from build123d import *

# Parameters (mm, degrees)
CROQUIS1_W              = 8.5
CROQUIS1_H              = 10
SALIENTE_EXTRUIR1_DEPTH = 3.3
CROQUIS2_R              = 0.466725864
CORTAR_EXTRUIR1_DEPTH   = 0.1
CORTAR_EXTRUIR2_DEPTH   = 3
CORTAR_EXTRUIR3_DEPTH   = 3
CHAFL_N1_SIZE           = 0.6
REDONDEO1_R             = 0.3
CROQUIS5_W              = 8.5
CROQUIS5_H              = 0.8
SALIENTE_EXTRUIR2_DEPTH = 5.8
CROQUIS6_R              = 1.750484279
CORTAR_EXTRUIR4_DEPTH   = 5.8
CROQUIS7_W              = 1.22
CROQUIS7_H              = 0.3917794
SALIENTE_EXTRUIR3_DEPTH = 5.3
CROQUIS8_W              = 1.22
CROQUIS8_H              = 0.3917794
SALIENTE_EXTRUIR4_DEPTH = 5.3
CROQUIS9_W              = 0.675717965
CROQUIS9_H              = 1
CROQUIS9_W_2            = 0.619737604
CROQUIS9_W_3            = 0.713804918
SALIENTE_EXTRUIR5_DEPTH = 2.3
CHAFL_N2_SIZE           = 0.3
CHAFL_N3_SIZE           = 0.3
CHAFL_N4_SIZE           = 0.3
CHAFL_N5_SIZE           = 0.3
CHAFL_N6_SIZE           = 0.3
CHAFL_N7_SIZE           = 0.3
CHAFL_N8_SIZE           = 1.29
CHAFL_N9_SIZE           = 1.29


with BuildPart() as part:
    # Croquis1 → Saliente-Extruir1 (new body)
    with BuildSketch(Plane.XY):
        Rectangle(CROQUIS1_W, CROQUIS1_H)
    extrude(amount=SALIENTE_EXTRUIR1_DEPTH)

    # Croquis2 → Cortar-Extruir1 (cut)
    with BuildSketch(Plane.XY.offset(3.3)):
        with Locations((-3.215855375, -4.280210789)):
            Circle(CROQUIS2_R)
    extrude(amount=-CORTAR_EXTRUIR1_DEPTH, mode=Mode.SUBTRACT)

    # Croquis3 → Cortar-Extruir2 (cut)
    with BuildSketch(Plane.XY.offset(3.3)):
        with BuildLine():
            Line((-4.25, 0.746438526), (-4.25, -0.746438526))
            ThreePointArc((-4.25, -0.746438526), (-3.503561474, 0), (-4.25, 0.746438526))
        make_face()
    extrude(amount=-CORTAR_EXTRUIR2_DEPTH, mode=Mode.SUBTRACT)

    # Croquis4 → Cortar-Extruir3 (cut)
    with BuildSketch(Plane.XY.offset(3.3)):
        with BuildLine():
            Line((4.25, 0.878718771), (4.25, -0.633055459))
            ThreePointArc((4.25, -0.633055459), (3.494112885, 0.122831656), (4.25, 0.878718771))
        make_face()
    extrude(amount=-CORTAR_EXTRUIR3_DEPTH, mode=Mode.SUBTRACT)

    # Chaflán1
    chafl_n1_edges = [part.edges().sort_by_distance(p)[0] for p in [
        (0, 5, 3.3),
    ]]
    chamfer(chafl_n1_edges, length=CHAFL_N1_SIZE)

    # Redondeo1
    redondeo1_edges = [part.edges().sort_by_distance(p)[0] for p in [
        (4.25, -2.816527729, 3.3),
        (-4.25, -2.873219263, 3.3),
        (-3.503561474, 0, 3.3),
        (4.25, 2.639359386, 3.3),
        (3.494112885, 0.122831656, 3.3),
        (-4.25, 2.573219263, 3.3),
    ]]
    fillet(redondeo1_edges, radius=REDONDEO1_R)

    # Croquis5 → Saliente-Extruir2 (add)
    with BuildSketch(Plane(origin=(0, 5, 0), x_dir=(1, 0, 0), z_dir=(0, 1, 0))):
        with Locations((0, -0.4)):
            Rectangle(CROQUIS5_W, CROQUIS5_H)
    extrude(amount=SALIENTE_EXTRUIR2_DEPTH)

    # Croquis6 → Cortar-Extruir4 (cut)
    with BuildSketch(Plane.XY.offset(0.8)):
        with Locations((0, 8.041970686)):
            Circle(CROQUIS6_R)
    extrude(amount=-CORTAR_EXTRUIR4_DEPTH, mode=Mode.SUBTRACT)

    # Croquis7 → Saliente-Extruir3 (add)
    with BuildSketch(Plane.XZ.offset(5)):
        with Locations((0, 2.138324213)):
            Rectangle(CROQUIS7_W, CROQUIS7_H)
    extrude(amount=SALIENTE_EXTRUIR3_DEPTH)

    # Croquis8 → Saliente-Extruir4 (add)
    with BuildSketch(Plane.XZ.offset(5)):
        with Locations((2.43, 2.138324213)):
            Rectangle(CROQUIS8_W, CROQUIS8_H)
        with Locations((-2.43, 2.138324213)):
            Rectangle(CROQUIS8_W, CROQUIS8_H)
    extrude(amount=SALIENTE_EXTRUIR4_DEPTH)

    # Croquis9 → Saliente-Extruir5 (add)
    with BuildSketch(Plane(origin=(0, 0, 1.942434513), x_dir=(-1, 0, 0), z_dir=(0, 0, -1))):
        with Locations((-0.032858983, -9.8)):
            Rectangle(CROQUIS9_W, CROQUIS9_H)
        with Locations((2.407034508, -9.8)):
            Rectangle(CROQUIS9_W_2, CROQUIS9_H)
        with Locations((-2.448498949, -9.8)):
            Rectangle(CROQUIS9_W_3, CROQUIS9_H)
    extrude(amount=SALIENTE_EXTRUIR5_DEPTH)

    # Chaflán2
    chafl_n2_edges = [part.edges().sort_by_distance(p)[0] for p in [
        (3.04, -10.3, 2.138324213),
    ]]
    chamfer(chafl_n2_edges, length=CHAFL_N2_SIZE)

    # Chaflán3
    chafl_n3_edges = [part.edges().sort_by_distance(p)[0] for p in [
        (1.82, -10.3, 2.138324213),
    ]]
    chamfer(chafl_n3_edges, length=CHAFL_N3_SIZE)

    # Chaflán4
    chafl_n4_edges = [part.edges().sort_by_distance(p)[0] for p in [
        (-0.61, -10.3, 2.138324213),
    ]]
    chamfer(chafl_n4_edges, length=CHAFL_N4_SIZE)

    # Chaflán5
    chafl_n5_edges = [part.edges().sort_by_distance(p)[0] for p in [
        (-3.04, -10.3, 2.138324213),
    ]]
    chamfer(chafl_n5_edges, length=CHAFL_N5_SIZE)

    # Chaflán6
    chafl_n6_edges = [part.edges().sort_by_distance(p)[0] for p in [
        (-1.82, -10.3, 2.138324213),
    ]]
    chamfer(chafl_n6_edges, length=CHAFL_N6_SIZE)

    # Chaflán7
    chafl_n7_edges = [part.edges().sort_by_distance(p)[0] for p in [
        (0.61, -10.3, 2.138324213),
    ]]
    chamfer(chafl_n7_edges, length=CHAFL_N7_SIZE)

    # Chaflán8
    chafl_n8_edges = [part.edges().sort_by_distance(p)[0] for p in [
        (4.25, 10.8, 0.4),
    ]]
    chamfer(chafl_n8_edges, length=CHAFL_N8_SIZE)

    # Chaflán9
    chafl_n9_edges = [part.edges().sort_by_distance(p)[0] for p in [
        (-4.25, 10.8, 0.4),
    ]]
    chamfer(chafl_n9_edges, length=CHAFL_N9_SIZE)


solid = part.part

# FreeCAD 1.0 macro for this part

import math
import FreeCAD as App
import Part
import Sketcher
from FreeCAD import Vector
Q = App.Units.Quantity


def edges_at(feature, points):
    """Names of the edges that pass closest to the given points."""
    edges = feature.Shape.Edges
    near = lambda p: min(range(len(edges)), key=lambda i: edges[i].distToShape(Part.Vertex(*p))[0])
    return sorted({f"Edge{near(p) + 1}" for p in points})

doc = App.newDocument("Part")
body = doc.addObject("PartDesign::Body", "Body")

sketch1 = body.newObject("Sketcher::SketchObject", "Sketch")
sketch1.AttachmentSupport = (doc.getObject("XY_Plane"), [""])
sketch1.MapMode = "FlatFace"
sketch1.addGeometry(Part.LineSegment(Vector(-4.25, 5, 0), Vector(-4.25, -5, 0)), False)
sketch1.addGeometry(Part.LineSegment(Vector(-4.25, -5, 0), Vector(4.25, -5, 0)), False)
sketch1.addGeometry(Part.LineSegment(Vector(4.25, -5, 0), Vector(4.25, 5, 0)), False)
sketch1.addGeometry(Part.LineSegment(Vector(4.25, 5, 0), Vector(-4.25, 5, 0)), False)
sketch1.addConstraint(Sketcher.Constraint("Coincident", 0, 2, 1, 1))
sketch1.addConstraint(Sketcher.Constraint("Coincident", 1, 2, 2, 1))
sketch1.addConstraint(Sketcher.Constraint("Coincident", 2, 2, 3, 1))
sketch1.addConstraint(Sketcher.Constraint("Coincident", 3, 2, 0, 1))
sketch1.addConstraint(Sketcher.Constraint("Vertical", 0))
sketch1.addConstraint(Sketcher.Constraint("Horizontal", 1))
sketch1.addConstraint(Sketcher.Constraint("Vertical", 2))
sketch1.addConstraint(Sketcher.Constraint("Horizontal", 3))
sketch1.addConstraint(Sketcher.Constraint("Symmetric", 0, 2, 2, 2, -1, 1))
sketch1.addConstraint(Sketcher.Constraint("DistanceY", 0, 2, 0, 1, Q("10 mm")))
sketch1.addConstraint(Sketcher.Constraint("DistanceX", 1, 1, 1, 2, Q("8.5 mm")))
pad1 = body.newObject("PartDesign::Pad", "Pad")
pad1.Profile = sketch1
pad1.Length = 3.3

sketch2 = body.newObject("Sketcher::SketchObject", "Sketch001")
sketch2.AttachmentSupport = (doc.getObject("XY_Plane"), [""])
sketch2.MapMode = "FlatFace"
sketch2.AttachmentOffset = App.Placement(Vector(0, 0, 3.3), App.Rotation())
sketch2.addGeometry(Part.Circle(Vector(-3.215855, -4.280211, 0), Vector(0, 0, 1), 0.466726), False)
sketch2.addConstraint(Sketcher.Constraint("Diameter", 0, Q("0.933452 mm")))
sketch2.addConstraint(Sketcher.Constraint("DistanceY", 0, 3, -1, 1, Q("4.280211 mm")))
sketch2.addConstraint(Sketcher.Constraint("DistanceX", 0, 3, -1, 1, Q("3.215855 mm")))
pocket1 = body.newObject("PartDesign::Pocket", "Pocket")
pocket1.Profile = sketch2
pocket1.Length = 0.1

sketch3 = body.newObject("Sketcher::SketchObject", "Sketch002")
sketch3.AttachmentSupport = (doc.getObject("XY_Plane"), [""])
sketch3.MapMode = "FlatFace"
sketch3.AttachmentOffset = App.Placement(Vector(0, 0, 3.3), App.Rotation())
sketch3.addGeometry(Part.LineSegment(Vector(-4.25, 0.746439, 0), Vector(-4.25, -0.746439, 0)), False)
sketch3.addGeometry(Part.ArcOfCircle(Part.Circle(Vector(-4.25, 0, 0), Vector(0, 0, 1), 0.746439), math.radians(-90), math.radians(90)), False)
sketch3.addConstraint(Sketcher.Constraint("Coincident", 0, 1, 1, 2))
sketch3.addConstraint(Sketcher.Constraint("Coincident", 1, 1, 0, 2))
sketch3.addConstraint(Sketcher.Constraint("Vertical", 0))
sketch3.addConstraint(Sketcher.Constraint("PointOnObject", 1, 3, -1))
sketch3.addConstraint(Sketcher.Constraint("Vertical", 1, 3, 0, 1))
sketch3.addConstraint(Sketcher.Constraint("DistanceX", 1, 3, -1, 1, Q("4.25 mm")))
sketch3.addConstraint(Sketcher.Constraint("Radius", 1, Q("0.746439 mm")))
pocket2 = body.newObject("PartDesign::Pocket", "Pocket001")
pocket2.Profile = sketch3
pocket2.Length = 3

sketch4 = body.newObject("Sketcher::SketchObject", "Sketch003")
sketch4.AttachmentSupport = (doc.getObject("XY_Plane"), [""])
sketch4.MapMode = "FlatFace"
sketch4.AttachmentOffset = App.Placement(Vector(0, 0, 3.3), App.Rotation())
sketch4.addGeometry(Part.LineSegment(Vector(4.25, -0.633055, 0), Vector(4.25, 0.878719, 0)), False)
sketch4.addGeometry(Part.ArcOfCircle(Part.Circle(Vector(4.25, 0.122832, 0), Vector(0, 0, 1), 0.755887), math.radians(90), math.radians(270)), False)
sketch4.addConstraint(Sketcher.Constraint("Coincident", 0, 1, 1, 2))
sketch4.addConstraint(Sketcher.Constraint("Coincident", 1, 1, 0, 2))
sketch4.addConstraint(Sketcher.Constraint("Vertical", 0))
sketch4.addConstraint(Sketcher.Constraint("Vertical", 1, 3, 0, 1))
sketch4.addConstraint(Sketcher.Constraint("DistanceX", -1, 1, 1, 3, Q("4.25 mm")))
sketch4.addConstraint(Sketcher.Constraint("Radius", 1, Q("0.755887 mm")))
sketch4.addConstraint(Sketcher.Constraint("DistanceY", -1, 1, 1, 3, Q("0.122832 mm")))
pocket3 = body.newObject("PartDesign::Pocket", "Pocket002")
pocket3.Profile = sketch4
pocket3.Length = 3
doc.recompute()

chamfer = body.newObject("PartDesign::Chamfer", "Chamfer")
chamfer.Base = (pocket3, edges_at(pocket3, [(0, 5, 3.3)]))
chamfer.Size = 0.6
doc.recompute()

fillet = body.newObject("PartDesign::Fillet", "Fillet")
fillet.Base = (chamfer, edges_at(chamfer, [
    (4.25, -2.817, 3.3),
    (-4.25, -2.873, 3.3),
    (-3.504, 0, 3.3),
    (4.25, 2.639, 3.3),
    (3.494, 0.123, 3.3),
    (-4.25, 2.573, 3.3),
]))
fillet.Radius = 0.3

sketch5 = body.newObject("Sketcher::SketchObject", "Sketch004")
sketch5.AttachmentSupport = (doc.getObject("XZ_Plane"), [""])
sketch5.MapMode = "FlatFace"
sketch5.AttachmentOffset = App.Placement(Vector(0, 0, -5), App.Rotation())
sketch5.addGeometry(Part.LineSegment(Vector(-4.25, 0, 0), Vector(-4.25, 0.8, 0)), False)
sketch5.addGeometry(Part.LineSegment(Vector(-4.25, 0.8, 0), Vector(4.25, 0.8, 0)), False)
sketch5.addGeometry(Part.LineSegment(Vector(4.25, 0.8, 0), Vector(4.25, 0, 0)), False)
sketch5.addGeometry(Part.LineSegment(Vector(4.25, 0, 0), Vector(-4.25, 0, 0)), False)
sketch5.addConstraint(Sketcher.Constraint("Coincident", 0, 2, 1, 1))
sketch5.addConstraint(Sketcher.Constraint("Coincident", 1, 2, 2, 1))
sketch5.addConstraint(Sketcher.Constraint("Coincident", 2, 2, 3, 1))
sketch5.addConstraint(Sketcher.Constraint("Coincident", 3, 2, 0, 1))
sketch5.addConstraint(Sketcher.Constraint("Vertical", 0))
sketch5.addConstraint(Sketcher.Constraint("Horizontal", 1))
sketch5.addConstraint(Sketcher.Constraint("Vertical", 2))
sketch5.addConstraint(Sketcher.Constraint("Horizontal", 3))
sketch5.addConstraint(Sketcher.Constraint("Symmetric", 2, 2, 3, 2, -1, 1))
sketch5.addConstraint(Sketcher.Constraint("DistanceX", 1, 1, 1, 2, Q("8.5 mm")))
sketch5.addConstraint(Sketcher.Constraint("DistanceY", 0, 1, 0, 2, Q("0.8 mm")))
pad2 = body.newObject("PartDesign::Pad", "Pad001")
pad2.Profile = sketch5
pad2.Length = 5.8
pad2.Reversed = True

sketch6 = body.newObject("Sketcher::SketchObject", "Sketch005")
sketch6.AttachmentSupport = (doc.getObject("XY_Plane"), [""])
sketch6.MapMode = "FlatFace"
sketch6.AttachmentOffset = App.Placement(Vector(0, 0, 0.8), App.Rotation())
sketch6.addGeometry(Part.Circle(Vector(0, 8.041971, 0), Vector(0, 0, 1), 1.750484), False)
sketch6.addConstraint(Sketcher.Constraint("PointOnObject", 0, 3, -2))
sketch6.addConstraint(Sketcher.Constraint("Diameter", 0, Q("3.500969 mm")))
sketch6.addConstraint(Sketcher.Constraint("DistanceY", -1, 1, 0, 3, Q("8.041971 mm")))
pocket4 = body.newObject("PartDesign::Pocket", "Pocket003")
pocket4.Profile = sketch6
pocket4.Length = 5.8

sketch7 = body.newObject("Sketcher::SketchObject", "Sketch006")
sketch7.AttachmentSupport = (doc.getObject("XZ_Plane"), [""])
sketch7.MapMode = "FlatFace"
sketch7.AttachmentOffset = App.Placement(Vector(0, 0, 5), App.Rotation())
sketch7.addGeometry(Part.LineSegment(Vector(-0.61, 2.334214, 0), Vector(-0.61, 1.942435, 0)), False)
sketch7.addGeometry(Part.LineSegment(Vector(-0.61, 1.942435, 0), Vector(0.61, 1.942435, 0)), False)
sketch7.addGeometry(Part.LineSegment(Vector(0.61, 1.942435, 0), Vector(0.61, 2.334214, 0)), False)
sketch7.addGeometry(Part.LineSegment(Vector(0.61, 2.334214, 0), Vector(-0.61, 2.334214, 0)), False)
sketch7.addConstraint(Sketcher.Constraint("Coincident", 0, 2, 1, 1))
sketch7.addConstraint(Sketcher.Constraint("Coincident", 1, 2, 2, 1))
sketch7.addConstraint(Sketcher.Constraint("Coincident", 2, 2, 3, 1))
sketch7.addConstraint(Sketcher.Constraint("Coincident", 3, 2, 0, 1))
sketch7.addConstraint(Sketcher.Constraint("Vertical", 0))
sketch7.addConstraint(Sketcher.Constraint("Horizontal", 1))
sketch7.addConstraint(Sketcher.Constraint("Vertical", 2))
sketch7.addConstraint(Sketcher.Constraint("Horizontal", 3))
sketch7.addConstraint(Sketcher.Constraint("DistanceX", 1, 1, 1, 2, Q("1.22 mm")))
sketch7.addConstraint(Sketcher.Constraint("DistanceX", 0, 2, -1, 1, Q("0.61 mm")))
sketch7.addConstraint(Sketcher.Constraint("DistanceY", 0, 2, 0, 1, Q("0.391779 mm")))
sketch7.addConstraint(Sketcher.Constraint("DistanceY", -1, 1, 0, 2, Q("1.942435 mm")))
pad3 = body.newObject("PartDesign::Pad", "Pad002")
pad3.Profile = sketch7
pad3.Length = 5.3

sketch8 = body.newObject("Sketcher::SketchObject", "Sketch007")
sketch8.AttachmentSupport = (doc.getObject("XZ_Plane"), [""])
sketch8.MapMode = "FlatFace"
sketch8.AttachmentOffset = App.Placement(Vector(0, 0, 5), App.Rotation())
sketch8.addGeometry(Part.LineSegment(Vector(1.82, 2.334214, 0), Vector(1.82, 1.942435, 0)), False)
sketch8.addGeometry(Part.LineSegment(Vector(1.82, 1.942435, 0), Vector(3.04, 1.942435, 0)), False)
sketch8.addGeometry(Part.LineSegment(Vector(3.04, 1.942435, 0), Vector(3.04, 2.334214, 0)), False)
sketch8.addGeometry(Part.LineSegment(Vector(3.04, 2.334214, 0), Vector(1.82, 2.334214, 0)), False)
sketch8.addGeometry(Part.LineSegment(Vector(-3.04, 2.334214, 0), Vector(-3.04, 1.942435, 0)), False)
sketch8.addGeometry(Part.LineSegment(Vector(-3.04, 1.942435, 0), Vector(-1.82, 1.942435, 0)), False)
sketch8.addGeometry(Part.LineSegment(Vector(-1.82, 1.942435, 0), Vector(-1.82, 2.334214, 0)), False)
sketch8.addGeometry(Part.LineSegment(Vector(-1.82, 2.334214, 0), Vector(-3.04, 2.334214, 0)), False)
sketch8.addConstraint(Sketcher.Constraint("Coincident", 0, 2, 1, 1))
sketch8.addConstraint(Sketcher.Constraint("Coincident", 1, 2, 2, 1))
sketch8.addConstraint(Sketcher.Constraint("Coincident", 2, 2, 3, 1))
sketch8.addConstraint(Sketcher.Constraint("Coincident", 3, 2, 0, 1))
sketch8.addConstraint(Sketcher.Constraint("Coincident", 4, 2, 5, 1))
sketch8.addConstraint(Sketcher.Constraint("Coincident", 5, 2, 6, 1))
sketch8.addConstraint(Sketcher.Constraint("Coincident", 6, 2, 7, 1))
sketch8.addConstraint(Sketcher.Constraint("Coincident", 7, 2, 4, 1))
sketch8.addConstraint(Sketcher.Constraint("Vertical", 0))
sketch8.addConstraint(Sketcher.Constraint("Horizontal", 1))
sketch8.addConstraint(Sketcher.Constraint("Vertical", 2))
sketch8.addConstraint(Sketcher.Constraint("Horizontal", 3))
sketch8.addConstraint(Sketcher.Constraint("Vertical", 4))
sketch8.addConstraint(Sketcher.Constraint("Horizontal", 5))
sketch8.addConstraint(Sketcher.Constraint("Vertical", 6))
sketch8.addConstraint(Sketcher.Constraint("Horizontal", 7))
sketch8.addConstraint(Sketcher.Constraint("Symmetric", 1, 2, 4, 2, -2))
sketch8.addConstraint(Sketcher.Constraint("Symmetric", 3, 2, 6, 2, -2))
sketch8.addConstraint(Sketcher.Constraint("DistanceX", 1, 1, 1, 2, Q("1.22 mm")))
sketch8.addConstraint(Sketcher.Constraint("DistanceX", -1, 1, 0, 2, Q("1.82 mm")))
sketch8.addConstraint(Sketcher.Constraint("DistanceY", 0, 2, 0, 1, Q("0.391779 mm")))
sketch8.addConstraint(Sketcher.Constraint("DistanceY", -1, 1, 0, 2, Q("1.942435 mm")))
pad4 = body.newObject("PartDesign::Pad", "Pad003")
pad4.Profile = sketch8
pad4.Length = 5.3

sketch9 = body.newObject("Sketcher::SketchObject", "Sketch008")
sketch9.AttachmentSupport = (doc.getObject("XY_Plane"), [""])
sketch9.MapMode = "FlatFace"
sketch9.AttachmentOffset = App.Placement(Vector(0, 0, 1.942435), App.Rotation())
sketch9.addGeometry(Part.LineSegment(Vector(0.370718, -9.3, 0), Vector(0.370718, -10.3, 0)), False)
sketch9.addGeometry(Part.LineSegment(Vector(0.370718, -10.3, 0), Vector(-0.305, -10.3, 0)), False)
sketch9.addGeometry(Part.LineSegment(Vector(-0.305, -10.3, 0), Vector(-0.305, -9.3, 0)), False)
sketch9.addGeometry(Part.LineSegment(Vector(-0.305, -9.3, 0), Vector(0.370718, -9.3, 0)), False)
sketch9.addGeometry(Part.LineSegment(Vector(-2.097166, -9.3, 0), Vector(-2.097166, -10.3, 0)), False)
sketch9.addGeometry(Part.LineSegment(Vector(-2.097166, -10.3, 0), Vector(-2.716903, -10.3, 0)), False)
sketch9.addGeometry(Part.LineSegment(Vector(-2.716903, -10.3, 0), Vector(-2.716903, -9.3, 0)), False)
sketch9.addGeometry(Part.LineSegment(Vector(-2.716903, -9.3, 0), Vector(-2.097166, -9.3, 0)), False)
sketch9.addGeometry(Part.LineSegment(Vector(2.805401, -9.3, 0), Vector(2.805401, -10.3, 0)), False)
sketch9.addGeometry(Part.LineSegment(Vector(2.805401, -10.3, 0), Vector(2.091596, -10.3, 0)), False)
sketch9.addGeometry(Part.LineSegment(Vector(2.091596, -10.3, 0), Vector(2.091596, -9.3, 0)), False)
sketch9.addGeometry(Part.LineSegment(Vector(2.091596, -9.3, 0), Vector(2.805401, -9.3, 0)), False)
sketch9.addConstraint(Sketcher.Constraint("Coincident", 0, 2, 1, 1))
sketch9.addConstraint(Sketcher.Constraint("Coincident", 1, 2, 2, 1))
sketch9.addConstraint(Sketcher.Constraint("Coincident", 2, 2, 3, 1))
sketch9.addConstraint(Sketcher.Constraint("Coincident", 3, 2, 0, 1))
sketch9.addConstraint(Sketcher.Constraint("Coincident", 4, 2, 5, 1))
sketch9.addConstraint(Sketcher.Constraint("Coincident", 5, 2, 6, 1))
sketch9.addConstraint(Sketcher.Constraint("Coincident", 6, 2, 7, 1))
sketch9.addConstraint(Sketcher.Constraint("Coincident", 7, 2, 4, 1))
sketch9.addConstraint(Sketcher.Constraint("Coincident", 8, 2, 9, 1))
sketch9.addConstraint(Sketcher.Constraint("Coincident", 9, 2, 10, 1))
sketch9.addConstraint(Sketcher.Constraint("Coincident", 10, 2, 11, 1))
sketch9.addConstraint(Sketcher.Constraint("Coincident", 11, 2, 8, 1))
sketch9.addConstraint(Sketcher.Constraint("Vertical", 0))
sketch9.addConstraint(Sketcher.Constraint("Horizontal", 1))
sketch9.addConstraint(Sketcher.Constraint("Vertical", 2))
sketch9.addConstraint(Sketcher.Constraint("Horizontal", 3))
sketch9.addConstraint(Sketcher.Constraint("Vertical", 4))
sketch9.addConstraint(Sketcher.Constraint("Horizontal", 5))
sketch9.addConstraint(Sketcher.Constraint("Vertical", 6))
sketch9.addConstraint(Sketcher.Constraint("Horizontal", 7))
sketch9.addConstraint(Sketcher.Constraint("Vertical", 8))
sketch9.addConstraint(Sketcher.Constraint("Horizontal", 9))
sketch9.addConstraint(Sketcher.Constraint("Vertical", 10))
sketch9.addConstraint(Sketcher.Constraint("Horizontal", 11))
sketch9.addConstraint(Sketcher.Constraint("Horizontal", 1, 2, 4, 2))
sketch9.addConstraint(Sketcher.Constraint("Horizontal", 3, 2, 6, 2))
sketch9.addConstraint(Sketcher.Constraint("Horizontal", 5, 2, 8, 2))
sketch9.addConstraint(Sketcher.Constraint("Horizontal", 7, 2, 10, 2))
sketch9.addConstraint(Sketcher.Constraint("DistanceY", 0, 2, 0, 1, Q("1 mm")))
sketch9.addConstraint(Sketcher.Constraint("DistanceY", 0, 2, -1, 1, Q("10.3 mm")))
sketch9.addConstraint(Sketcher.Constraint("DistanceX", 1, 2, -1, 1, Q("0.305 mm")))
sketch9.addConstraint(Sketcher.Constraint("DistanceX", -1, 1, 8, 2, Q("2.805401 mm")))
sketch9.addConstraint(Sketcher.Constraint("DistanceX", 1, 2, 1, 1, Q("0.675718 mm")))
sketch9.addConstraint(Sketcher.Constraint("DistanceX", 5, 2, 5, 1, Q("0.619738 mm")))
sketch9.addConstraint(Sketcher.Constraint("DistanceX", 9, 2, 9, 1, Q("0.713805 mm")))
sketch9.addConstraint(Sketcher.Constraint("DistanceX", 5, 2, 0, 2, Q("3.087621 mm")))
pad5 = body.newObject("PartDesign::Pad", "Pad004")
pad5.Profile = sketch9
pad5.Length = 2.3
pad5.Reversed = True
doc.recompute()

chamfer2 = body.newObject("PartDesign::Chamfer", "Chamfer001")
chamfer2.Base = (pad5, edges_at(pad5, [(3.04, -10.3, 2.138)]))
chamfer2.Size = 0.3
doc.recompute()

chamfer3 = body.newObject("PartDesign::Chamfer", "Chamfer002")
chamfer3.Base = (chamfer2, edges_at(chamfer2, [(1.82, -10.3, 2.138)]))
chamfer3.Size = 0.3
doc.recompute()

chamfer4 = body.newObject("PartDesign::Chamfer", "Chamfer003")
chamfer4.Base = (chamfer3, edges_at(chamfer3, [(-0.61, -10.3, 2.138)]))
chamfer4.Size = 0.3
doc.recompute()

chamfer5 = body.newObject("PartDesign::Chamfer", "Chamfer004")
chamfer5.Base = (chamfer4, edges_at(chamfer4, [(-3.04, -10.3, 2.138)]))
chamfer5.Size = 0.3
doc.recompute()

chamfer6 = body.newObject("PartDesign::Chamfer", "Chamfer005")
chamfer6.Base = (chamfer5, edges_at(chamfer5, [(-1.82, -10.3, 2.138)]))
chamfer6.Size = 0.3
doc.recompute()

chamfer7 = body.newObject("PartDesign::Chamfer", "Chamfer006")
chamfer7.Base = (chamfer6, edges_at(chamfer6, [(0.61, -10.3, 2.138)]))
chamfer7.Size = 0.3
doc.recompute()

chamfer8 = body.newObject("PartDesign::Chamfer", "Chamfer007")
chamfer8.Base = (chamfer7, edges_at(chamfer7, [(4.25, 10.8, 0.4)]))
chamfer8.Size = 1.29
doc.recompute()

chamfer9 = body.newObject("PartDesign::Chamfer", "Chamfer008")
chamfer9.Base = (chamfer8, edges_at(chamfer8, [(-4.25, 10.8, 0.4)]))
chamfer9.Size = 1.29

doc.recompute()
